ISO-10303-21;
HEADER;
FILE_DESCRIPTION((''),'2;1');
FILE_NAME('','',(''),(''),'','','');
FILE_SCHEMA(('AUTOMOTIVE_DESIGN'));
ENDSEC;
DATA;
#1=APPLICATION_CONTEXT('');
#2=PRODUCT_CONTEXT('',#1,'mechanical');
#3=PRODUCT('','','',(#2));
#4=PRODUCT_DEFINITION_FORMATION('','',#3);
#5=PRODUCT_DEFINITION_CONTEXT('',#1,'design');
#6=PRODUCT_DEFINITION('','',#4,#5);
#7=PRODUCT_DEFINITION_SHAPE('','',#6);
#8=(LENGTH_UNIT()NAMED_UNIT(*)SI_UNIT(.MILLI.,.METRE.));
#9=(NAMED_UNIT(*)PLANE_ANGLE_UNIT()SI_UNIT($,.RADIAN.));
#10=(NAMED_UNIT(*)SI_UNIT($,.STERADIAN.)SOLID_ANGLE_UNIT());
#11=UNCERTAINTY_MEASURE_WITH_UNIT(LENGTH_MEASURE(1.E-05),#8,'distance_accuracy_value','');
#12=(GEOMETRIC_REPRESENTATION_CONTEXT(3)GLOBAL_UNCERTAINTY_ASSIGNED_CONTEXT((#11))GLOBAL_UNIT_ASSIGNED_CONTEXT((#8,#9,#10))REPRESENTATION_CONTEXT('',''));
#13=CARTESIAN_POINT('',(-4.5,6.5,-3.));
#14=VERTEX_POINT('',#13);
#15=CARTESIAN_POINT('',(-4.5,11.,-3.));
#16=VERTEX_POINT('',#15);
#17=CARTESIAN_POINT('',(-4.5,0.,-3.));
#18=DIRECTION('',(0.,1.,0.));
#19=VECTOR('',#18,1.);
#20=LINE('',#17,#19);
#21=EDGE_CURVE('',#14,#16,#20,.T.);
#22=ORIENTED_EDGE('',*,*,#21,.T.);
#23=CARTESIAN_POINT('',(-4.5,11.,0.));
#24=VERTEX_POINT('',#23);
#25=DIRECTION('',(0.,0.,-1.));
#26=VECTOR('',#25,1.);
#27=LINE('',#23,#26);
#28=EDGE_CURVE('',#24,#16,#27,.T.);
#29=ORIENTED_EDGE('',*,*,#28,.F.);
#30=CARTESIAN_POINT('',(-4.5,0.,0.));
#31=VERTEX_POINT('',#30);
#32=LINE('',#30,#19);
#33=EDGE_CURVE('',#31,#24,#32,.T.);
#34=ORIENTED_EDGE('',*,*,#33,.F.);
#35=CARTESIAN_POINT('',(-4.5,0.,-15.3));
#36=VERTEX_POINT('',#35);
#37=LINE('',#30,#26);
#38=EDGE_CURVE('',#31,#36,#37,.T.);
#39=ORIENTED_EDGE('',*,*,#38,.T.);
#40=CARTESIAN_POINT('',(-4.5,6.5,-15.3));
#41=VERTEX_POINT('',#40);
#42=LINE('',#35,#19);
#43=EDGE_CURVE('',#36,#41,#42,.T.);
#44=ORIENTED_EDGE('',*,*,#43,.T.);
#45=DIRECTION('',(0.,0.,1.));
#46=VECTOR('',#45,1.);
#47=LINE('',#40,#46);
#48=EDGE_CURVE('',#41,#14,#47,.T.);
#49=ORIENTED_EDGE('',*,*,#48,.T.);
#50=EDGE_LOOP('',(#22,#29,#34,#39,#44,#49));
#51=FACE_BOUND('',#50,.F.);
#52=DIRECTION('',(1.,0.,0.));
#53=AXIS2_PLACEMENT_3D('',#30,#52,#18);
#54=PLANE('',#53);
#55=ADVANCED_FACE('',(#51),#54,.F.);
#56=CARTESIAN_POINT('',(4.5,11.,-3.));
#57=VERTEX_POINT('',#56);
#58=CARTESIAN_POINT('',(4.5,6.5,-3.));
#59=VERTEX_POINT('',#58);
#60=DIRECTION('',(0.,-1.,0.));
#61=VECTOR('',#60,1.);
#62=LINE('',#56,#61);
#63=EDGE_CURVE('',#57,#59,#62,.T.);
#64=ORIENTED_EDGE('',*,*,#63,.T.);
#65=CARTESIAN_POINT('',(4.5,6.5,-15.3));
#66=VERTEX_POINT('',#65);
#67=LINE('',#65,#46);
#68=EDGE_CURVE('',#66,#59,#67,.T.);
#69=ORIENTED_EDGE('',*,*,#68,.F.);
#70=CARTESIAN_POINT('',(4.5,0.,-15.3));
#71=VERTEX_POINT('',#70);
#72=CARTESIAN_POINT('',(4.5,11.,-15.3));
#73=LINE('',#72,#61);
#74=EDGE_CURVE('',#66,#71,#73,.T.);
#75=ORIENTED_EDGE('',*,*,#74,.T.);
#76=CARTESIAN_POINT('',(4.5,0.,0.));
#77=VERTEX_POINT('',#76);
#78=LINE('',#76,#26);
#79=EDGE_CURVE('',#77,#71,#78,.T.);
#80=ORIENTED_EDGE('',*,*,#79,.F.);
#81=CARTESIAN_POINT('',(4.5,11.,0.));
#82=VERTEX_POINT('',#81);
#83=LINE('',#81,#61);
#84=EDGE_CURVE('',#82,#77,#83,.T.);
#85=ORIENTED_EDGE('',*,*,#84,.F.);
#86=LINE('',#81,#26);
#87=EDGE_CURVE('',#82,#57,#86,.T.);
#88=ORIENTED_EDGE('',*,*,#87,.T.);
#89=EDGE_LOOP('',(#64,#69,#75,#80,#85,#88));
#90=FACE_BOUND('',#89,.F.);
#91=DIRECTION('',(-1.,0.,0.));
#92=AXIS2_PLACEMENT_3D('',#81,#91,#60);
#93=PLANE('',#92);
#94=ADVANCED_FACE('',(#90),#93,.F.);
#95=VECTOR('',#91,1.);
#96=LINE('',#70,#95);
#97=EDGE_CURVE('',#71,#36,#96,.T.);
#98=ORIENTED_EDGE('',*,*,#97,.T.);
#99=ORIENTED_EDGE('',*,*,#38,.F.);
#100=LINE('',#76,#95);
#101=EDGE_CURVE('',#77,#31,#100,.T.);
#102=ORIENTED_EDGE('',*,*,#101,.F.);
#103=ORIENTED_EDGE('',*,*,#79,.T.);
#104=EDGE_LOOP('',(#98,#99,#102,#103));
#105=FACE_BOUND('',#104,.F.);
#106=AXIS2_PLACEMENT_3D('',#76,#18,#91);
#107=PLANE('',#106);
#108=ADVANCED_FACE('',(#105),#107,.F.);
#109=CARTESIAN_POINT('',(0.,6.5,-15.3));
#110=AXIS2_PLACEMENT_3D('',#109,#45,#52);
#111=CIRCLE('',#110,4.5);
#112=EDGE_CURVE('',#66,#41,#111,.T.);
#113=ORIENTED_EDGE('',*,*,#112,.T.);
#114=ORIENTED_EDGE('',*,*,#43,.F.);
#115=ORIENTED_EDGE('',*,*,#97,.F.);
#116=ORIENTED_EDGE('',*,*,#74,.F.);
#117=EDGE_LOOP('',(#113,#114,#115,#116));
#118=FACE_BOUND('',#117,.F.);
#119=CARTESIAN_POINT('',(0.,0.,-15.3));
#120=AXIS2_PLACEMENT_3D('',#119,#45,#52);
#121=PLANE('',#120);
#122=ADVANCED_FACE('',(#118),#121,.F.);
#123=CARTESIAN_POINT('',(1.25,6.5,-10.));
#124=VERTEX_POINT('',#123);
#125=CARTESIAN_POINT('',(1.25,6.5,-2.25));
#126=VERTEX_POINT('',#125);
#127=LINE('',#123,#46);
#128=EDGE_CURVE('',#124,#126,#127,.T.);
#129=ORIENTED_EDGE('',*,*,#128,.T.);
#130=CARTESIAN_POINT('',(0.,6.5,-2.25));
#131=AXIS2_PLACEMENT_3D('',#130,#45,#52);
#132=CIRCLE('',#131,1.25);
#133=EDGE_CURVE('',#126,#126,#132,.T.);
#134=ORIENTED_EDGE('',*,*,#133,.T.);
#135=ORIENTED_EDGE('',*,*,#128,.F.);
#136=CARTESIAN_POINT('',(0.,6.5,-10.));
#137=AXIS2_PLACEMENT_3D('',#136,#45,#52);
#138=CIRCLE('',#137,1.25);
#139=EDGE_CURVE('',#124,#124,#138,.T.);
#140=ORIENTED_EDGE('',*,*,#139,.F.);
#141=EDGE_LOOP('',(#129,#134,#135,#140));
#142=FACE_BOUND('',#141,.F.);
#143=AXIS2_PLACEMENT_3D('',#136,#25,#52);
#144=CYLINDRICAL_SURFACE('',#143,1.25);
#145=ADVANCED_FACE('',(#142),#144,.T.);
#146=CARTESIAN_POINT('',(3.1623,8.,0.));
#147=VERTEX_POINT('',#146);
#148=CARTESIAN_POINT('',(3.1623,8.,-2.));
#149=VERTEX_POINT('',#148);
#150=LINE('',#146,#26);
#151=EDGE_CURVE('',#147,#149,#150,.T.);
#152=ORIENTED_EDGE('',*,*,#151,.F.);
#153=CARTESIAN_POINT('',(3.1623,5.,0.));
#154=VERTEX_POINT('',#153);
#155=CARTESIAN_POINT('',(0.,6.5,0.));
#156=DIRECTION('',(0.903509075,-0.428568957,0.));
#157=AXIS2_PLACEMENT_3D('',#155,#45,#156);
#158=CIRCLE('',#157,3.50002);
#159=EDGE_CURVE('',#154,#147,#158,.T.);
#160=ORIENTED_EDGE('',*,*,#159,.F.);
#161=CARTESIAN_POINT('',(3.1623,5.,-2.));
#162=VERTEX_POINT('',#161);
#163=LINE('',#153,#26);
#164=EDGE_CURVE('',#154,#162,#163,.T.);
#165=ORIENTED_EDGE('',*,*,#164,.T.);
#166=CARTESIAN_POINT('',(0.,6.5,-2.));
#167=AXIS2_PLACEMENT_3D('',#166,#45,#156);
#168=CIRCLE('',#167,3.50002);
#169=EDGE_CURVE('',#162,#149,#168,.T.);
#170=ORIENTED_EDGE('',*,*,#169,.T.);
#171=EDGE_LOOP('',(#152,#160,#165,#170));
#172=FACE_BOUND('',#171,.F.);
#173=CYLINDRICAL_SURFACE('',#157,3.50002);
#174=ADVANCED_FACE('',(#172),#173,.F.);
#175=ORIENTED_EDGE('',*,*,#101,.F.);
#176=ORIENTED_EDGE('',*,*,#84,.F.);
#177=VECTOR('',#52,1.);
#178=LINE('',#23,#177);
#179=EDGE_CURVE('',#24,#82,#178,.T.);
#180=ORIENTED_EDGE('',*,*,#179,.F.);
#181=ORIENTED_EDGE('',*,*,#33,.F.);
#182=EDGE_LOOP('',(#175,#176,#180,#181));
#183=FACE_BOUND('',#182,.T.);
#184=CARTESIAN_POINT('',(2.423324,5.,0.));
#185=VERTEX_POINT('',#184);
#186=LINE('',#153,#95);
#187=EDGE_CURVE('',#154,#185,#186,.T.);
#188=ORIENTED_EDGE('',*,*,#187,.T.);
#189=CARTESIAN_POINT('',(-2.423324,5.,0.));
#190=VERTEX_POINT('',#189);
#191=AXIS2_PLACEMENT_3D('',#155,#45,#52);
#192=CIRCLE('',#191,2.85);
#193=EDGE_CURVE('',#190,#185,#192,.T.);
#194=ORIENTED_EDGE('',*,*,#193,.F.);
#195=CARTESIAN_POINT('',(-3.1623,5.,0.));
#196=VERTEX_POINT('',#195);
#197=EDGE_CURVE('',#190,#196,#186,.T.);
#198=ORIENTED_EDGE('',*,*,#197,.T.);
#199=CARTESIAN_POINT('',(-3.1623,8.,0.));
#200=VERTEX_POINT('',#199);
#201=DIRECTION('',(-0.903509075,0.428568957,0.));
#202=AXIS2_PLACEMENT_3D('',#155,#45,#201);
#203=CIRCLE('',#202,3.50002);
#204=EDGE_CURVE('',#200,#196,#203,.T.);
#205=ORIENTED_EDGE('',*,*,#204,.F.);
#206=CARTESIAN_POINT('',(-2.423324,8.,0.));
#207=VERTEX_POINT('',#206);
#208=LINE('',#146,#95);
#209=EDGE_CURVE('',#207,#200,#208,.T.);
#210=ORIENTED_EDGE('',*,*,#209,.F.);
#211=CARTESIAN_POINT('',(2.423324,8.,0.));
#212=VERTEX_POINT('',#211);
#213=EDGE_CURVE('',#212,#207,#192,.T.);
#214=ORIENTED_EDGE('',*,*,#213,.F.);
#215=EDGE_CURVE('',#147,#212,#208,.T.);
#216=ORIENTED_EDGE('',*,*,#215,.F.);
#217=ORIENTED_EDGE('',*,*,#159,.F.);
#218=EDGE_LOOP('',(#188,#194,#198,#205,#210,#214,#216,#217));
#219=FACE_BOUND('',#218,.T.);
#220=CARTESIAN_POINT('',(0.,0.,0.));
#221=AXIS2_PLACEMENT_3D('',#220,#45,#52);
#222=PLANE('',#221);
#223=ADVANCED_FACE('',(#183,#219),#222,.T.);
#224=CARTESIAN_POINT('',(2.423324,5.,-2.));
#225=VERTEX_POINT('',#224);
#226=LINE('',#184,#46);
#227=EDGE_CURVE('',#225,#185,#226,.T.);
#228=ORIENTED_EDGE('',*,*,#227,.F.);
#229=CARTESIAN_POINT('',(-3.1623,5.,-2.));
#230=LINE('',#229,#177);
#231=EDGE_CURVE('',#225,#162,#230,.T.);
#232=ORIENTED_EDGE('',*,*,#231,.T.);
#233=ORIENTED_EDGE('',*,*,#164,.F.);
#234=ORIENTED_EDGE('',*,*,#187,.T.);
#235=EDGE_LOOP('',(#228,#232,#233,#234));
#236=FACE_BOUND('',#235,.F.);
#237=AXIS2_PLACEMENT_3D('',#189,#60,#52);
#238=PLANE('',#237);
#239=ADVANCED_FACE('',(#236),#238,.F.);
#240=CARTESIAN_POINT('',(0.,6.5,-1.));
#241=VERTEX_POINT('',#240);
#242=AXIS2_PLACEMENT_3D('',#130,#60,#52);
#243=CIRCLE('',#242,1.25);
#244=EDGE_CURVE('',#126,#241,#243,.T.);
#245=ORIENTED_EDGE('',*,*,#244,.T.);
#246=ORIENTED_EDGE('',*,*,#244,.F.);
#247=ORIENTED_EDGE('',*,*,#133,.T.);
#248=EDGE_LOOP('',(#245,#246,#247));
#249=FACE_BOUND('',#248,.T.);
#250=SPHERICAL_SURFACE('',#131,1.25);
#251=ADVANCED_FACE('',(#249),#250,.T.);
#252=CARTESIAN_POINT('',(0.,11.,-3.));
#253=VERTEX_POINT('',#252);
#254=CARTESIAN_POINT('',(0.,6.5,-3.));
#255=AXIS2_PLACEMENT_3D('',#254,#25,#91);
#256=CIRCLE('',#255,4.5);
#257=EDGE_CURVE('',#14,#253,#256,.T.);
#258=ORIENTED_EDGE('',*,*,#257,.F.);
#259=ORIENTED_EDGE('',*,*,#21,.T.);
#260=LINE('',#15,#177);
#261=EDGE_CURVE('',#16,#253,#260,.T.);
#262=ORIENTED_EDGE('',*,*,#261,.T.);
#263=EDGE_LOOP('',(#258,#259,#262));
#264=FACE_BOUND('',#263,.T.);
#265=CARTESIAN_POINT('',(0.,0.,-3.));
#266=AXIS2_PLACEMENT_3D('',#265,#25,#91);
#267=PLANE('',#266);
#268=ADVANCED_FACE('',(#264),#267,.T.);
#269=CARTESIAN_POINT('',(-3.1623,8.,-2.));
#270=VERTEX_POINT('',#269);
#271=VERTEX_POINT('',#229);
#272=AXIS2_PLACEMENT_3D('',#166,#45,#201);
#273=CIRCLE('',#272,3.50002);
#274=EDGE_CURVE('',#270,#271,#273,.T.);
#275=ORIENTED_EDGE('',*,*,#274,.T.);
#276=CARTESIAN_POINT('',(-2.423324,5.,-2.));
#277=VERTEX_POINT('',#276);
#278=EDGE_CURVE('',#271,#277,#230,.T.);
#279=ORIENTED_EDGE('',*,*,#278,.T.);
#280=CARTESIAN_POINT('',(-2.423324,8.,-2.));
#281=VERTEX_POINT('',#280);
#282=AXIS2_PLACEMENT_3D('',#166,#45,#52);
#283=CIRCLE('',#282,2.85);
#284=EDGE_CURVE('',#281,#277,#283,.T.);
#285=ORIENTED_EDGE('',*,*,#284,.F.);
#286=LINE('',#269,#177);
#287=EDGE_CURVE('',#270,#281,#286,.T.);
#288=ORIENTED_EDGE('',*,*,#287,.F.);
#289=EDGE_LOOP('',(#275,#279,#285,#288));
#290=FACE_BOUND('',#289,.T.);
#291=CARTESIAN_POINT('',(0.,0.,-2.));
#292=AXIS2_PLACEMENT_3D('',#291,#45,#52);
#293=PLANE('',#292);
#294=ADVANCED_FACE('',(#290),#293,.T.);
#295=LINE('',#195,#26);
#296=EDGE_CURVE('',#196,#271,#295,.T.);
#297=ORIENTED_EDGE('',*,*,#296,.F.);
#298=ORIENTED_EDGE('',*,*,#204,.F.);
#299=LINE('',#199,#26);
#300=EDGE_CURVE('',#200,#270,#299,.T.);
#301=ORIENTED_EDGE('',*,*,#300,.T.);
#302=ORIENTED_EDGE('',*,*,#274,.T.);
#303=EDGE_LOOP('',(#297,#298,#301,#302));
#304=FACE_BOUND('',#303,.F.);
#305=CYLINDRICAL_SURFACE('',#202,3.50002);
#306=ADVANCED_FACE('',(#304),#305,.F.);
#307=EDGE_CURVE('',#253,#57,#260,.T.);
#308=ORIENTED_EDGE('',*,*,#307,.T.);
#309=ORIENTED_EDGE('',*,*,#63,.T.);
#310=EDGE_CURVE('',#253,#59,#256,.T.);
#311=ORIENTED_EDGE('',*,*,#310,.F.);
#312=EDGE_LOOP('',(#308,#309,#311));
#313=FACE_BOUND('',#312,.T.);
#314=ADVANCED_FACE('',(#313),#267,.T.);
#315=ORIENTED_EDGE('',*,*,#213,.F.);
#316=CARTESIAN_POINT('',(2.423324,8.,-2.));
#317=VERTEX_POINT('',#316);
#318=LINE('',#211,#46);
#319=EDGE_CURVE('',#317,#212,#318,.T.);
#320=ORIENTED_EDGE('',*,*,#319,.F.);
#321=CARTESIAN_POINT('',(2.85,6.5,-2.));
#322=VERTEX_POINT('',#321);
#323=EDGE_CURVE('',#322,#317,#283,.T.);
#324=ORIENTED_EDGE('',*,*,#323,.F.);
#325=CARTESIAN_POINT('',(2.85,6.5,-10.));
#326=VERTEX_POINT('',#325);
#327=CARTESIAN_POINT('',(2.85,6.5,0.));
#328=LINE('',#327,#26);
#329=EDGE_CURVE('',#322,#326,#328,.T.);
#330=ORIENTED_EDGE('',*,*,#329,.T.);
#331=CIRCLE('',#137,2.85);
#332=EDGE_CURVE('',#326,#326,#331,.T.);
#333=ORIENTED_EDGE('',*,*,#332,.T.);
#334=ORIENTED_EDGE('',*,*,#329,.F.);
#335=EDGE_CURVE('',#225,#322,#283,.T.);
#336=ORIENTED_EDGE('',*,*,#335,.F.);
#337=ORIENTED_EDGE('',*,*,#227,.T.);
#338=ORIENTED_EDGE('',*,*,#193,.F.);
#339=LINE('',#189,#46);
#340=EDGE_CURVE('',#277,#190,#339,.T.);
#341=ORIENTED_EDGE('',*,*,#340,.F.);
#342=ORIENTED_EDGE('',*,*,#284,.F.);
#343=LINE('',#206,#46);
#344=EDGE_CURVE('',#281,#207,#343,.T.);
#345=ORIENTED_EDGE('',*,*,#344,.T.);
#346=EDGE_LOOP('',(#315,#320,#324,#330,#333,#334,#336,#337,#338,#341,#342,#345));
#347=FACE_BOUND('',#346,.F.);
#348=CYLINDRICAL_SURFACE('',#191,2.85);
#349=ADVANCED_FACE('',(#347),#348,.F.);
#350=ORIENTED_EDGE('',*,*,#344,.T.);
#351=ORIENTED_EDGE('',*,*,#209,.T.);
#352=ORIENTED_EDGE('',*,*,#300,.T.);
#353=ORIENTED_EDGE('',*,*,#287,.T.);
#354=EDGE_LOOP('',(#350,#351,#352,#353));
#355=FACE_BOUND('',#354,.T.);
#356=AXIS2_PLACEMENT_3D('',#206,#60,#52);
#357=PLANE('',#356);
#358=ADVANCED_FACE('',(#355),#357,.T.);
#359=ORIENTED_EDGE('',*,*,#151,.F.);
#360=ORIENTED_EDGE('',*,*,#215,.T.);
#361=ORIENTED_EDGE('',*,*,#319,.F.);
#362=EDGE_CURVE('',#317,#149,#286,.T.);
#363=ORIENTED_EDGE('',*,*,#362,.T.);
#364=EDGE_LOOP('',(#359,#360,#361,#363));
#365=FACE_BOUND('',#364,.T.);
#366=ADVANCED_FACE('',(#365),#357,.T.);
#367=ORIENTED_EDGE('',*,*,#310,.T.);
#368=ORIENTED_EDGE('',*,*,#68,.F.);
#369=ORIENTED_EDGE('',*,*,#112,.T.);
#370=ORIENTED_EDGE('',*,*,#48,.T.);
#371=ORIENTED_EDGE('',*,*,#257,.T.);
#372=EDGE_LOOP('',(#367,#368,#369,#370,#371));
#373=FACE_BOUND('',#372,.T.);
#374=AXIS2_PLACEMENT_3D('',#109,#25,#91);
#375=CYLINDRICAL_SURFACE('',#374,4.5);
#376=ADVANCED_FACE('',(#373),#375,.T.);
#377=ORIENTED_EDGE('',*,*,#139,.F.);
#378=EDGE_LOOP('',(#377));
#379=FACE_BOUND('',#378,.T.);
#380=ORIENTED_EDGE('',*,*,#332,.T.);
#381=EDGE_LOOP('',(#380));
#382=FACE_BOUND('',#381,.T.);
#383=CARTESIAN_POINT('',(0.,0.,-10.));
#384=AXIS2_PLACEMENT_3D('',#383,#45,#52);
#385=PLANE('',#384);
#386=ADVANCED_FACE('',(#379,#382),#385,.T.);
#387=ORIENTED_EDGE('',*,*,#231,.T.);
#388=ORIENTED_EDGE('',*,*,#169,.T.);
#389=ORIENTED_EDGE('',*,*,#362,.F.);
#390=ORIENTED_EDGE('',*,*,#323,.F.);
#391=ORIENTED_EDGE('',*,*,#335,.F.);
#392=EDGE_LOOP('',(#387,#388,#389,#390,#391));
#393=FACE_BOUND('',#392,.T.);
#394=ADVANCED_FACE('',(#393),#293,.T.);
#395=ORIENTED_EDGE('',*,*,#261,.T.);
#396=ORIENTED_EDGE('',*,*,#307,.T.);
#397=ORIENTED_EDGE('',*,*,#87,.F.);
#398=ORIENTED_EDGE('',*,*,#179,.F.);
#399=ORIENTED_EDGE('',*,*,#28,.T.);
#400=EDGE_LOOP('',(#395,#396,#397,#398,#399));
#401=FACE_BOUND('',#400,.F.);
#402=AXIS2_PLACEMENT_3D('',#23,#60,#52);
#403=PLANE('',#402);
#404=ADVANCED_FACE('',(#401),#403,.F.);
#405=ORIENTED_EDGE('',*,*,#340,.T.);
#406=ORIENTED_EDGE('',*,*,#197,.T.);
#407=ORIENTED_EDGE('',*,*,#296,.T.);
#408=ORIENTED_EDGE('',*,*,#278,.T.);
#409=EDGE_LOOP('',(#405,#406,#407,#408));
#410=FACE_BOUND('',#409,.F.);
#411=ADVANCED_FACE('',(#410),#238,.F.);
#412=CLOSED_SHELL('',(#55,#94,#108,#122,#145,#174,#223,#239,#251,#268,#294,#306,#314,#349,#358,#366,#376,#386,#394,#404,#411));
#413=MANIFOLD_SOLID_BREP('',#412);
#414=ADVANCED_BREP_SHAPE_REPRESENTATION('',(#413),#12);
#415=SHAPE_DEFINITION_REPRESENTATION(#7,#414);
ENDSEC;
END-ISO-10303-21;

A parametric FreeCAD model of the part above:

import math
import FreeCAD as App
import Part
import Sketcher

V = App.Vector
Q = App.Units.Quantity


def edges_at(feature, points):
    """Names of the edges that pass closest to the given points."""
    edges = feature.Shape.Edges
    near = lambda p: min(range(len(edges)), key=lambda i: edges[i].distToShape(Part.Vertex(*p))[0])
    return sorted({f"Edge{near(p) + 1}" for p in points})


def add_polygon(sketch, points):
    """Adds a closed chain of lines whose ends are joined by coincident constraints."""
    first, n = sketch.GeometryCount, len(points)
    for a, b in zip(points, points[1:] + points[:1]):
        sketch.addGeometry(Part.LineSegment(App.Vector(*a, 0), App.Vector(*b, 0)), False)
    for i in range(n):
        sketch.addConstraint(Sketcher.Constraint("Coincident", first + i, 2, first + (i + 1) % n, 1))

doc = App.newDocument("Part")
body = doc.addObject("PartDesign::Body", "Body")

sketch1 = doc.addObject("Sketcher::SketchObject", "Sketch")
body.addObject(sketch1)
sketch1.AttachmentSupport = (doc.XY_Plane, [""])
sketch1.MapMode = "FlatFace"
add_polygon(sketch1, [(4.5, 11), (-4.5, 11), (-4.5, 0), (4.5, 0)])
sketch1.addConstraint(Sketcher.Constraint("Horizontal", 0))
sketch1.addConstraint(Sketcher.Constraint("Vertical", 1))
sketch1.addConstraint(Sketcher.Constraint("Horizontal", 2))
sketch1.addConstraint(Sketcher.Constraint("Vertical", 3))
sketch1.addConstraint(Sketcher.Constraint("Symmetric", 1, 2, 2, 2, -1, 1))
sketch1.addConstraint(Sketcher.Constraint("DistanceX", 0, 2, 0, 1, Q("9 mm")))
sketch1.addConstraint(Sketcher.Constraint("DistanceY", 1, 2, 1, 1, Q("11 mm")))
pad1 = doc.addObject("PartDesign::Pad", "Pad")
body.addObject(pad1)
pad1.Profile = sketch1
pad1.Length = 15.3
pad1.Reversed = True

sketch2 = doc.addObject("Sketcher::SketchObject", "Sketch001")
body.addObject(sketch2)
sketch2.AttachmentSupport = (doc.XY_Plane, [""])
sketch2.MapMode = "FlatFace"
sketch2.addGeometry(Part.Circle(V(0, 6.5, 0), V(0, 0, 1), 2.85), False)
sketch2.addConstraint(Sketcher.Constraint("PointOnObject", 0, 3, -2))
sketch2.addConstraint(Sketcher.Constraint("Diameter", 0, Q("5.7 mm")))
sketch2.addConstraint(Sketcher.Constraint("DistanceY", -1, 1, 0, 3, Q("6.5 mm")))
pocket1 = doc.addObject("PartDesign::Pocket", "Pocket")
body.addObject(pocket1)
pocket1.Profile = sketch2
pocket1.Length = 10

sketch3 = doc.addObject("Sketcher::SketchObject", "Sketch002")
body.addObject(sketch3)
sketch3.AttachmentSupport = (doc.XY_Plane, [""])
sketch3.MapMode = "FlatFace"
sketch3.addGeometry(Part.ArcOfCircle(Part.Circle(V(0, 6.5, 0), V(0, 0, 1), 3.50002), math.radians(-25.376777), math.radians(25.376777)), False)
sketch3.addGeometry(Part.LineSegment(V(3.1623, 8, 0), V(-3.1623, 8, 0)), False)
sketch3.addGeometry(Part.ArcOfCircle(Part.Circle(V(0, 6.5, 0), V(0, 0, 1), 3.50002), math.radians(154.623223), math.radians(205.376777)), False)
sketch3.addGeometry(Part.LineSegment(V(-3.1623, 5, 0), V(3.1623, 5, 0)), False)
sketch3.addConstraint(Sketcher.Constraint("Coincident", 0, 2, 1, 1))
sketch3.addConstraint(Sketcher.Constraint("Coincident", 1, 2, 2, 1))
sketch3.addConstraint(Sketcher.Constraint("Coincident", 2, 2, 3, 1))
sketch3.addConstraint(Sketcher.Constraint("Coincident", 3, 2, 0, 1))
sketch3.addConstraint(Sketcher.Constraint("Horizontal", 1))
sketch3.addConstraint(Sketcher.Constraint("Horizontal", 3))
sketch3.addConstraint(Sketcher.Constraint("Coincident", 2, 3, 0, 3))
sketch3.addConstraint(Sketcher.Constraint("Equal", 0, 2))
sketch3.addConstraint(Sketcher.Constraint("PointOnObject", 0, 3, -2))
sketch3.addConstraint(Sketcher.Constraint("Vertical", 1, 2, 2, 2))
sketch3.addConstraint(Sketcher.Constraint("Radius", 0, Q("3.5 mm")))
sketch3.addConstraint(Sketcher.Constraint("DistanceY", 2, 2, 1, 2, Q("3 mm")))
sketch3.addConstraint(Sketcher.Constraint("DistanceY", -1, 1, 0, 2, Q("8 mm")))
pocket2 = doc.addObject("PartDesign::Pocket", "Pocket001")
body.addObject(pocket2)
pocket2.Profile = sketch3
pocket2.Length = 2

sketch4 = doc.addObject("Sketcher::SketchObject", "Sketch003")
body.addObject(sketch4)
sketch4.AttachmentSupport = (doc.XY_Plane, [""])
sketch4.MapMode = "FlatFace"
sketch4.AttachmentOffset = App.Placement(V(0, 0, -10), App.Rotation())
sketch4.addGeometry(Part.Circle(V(0, 6.5, 0), V(0, 0, 1), 1.25), False)
sketch4.addConstraint(Sketcher.Constraint("PointOnObject", 0, 3, -2))
sketch4.addConstraint(Sketcher.Constraint("Diameter", 0, Q("2.5 mm")))
sketch4.addConstraint(Sketcher.Constraint("DistanceY", -1, 1, 0, 3, Q("6.5 mm")))
pad2 = doc.addObject("PartDesign::Pad", "Pad001")
body.addObject(pad2)
pad2.Profile = sketch4
pad2.Length = 9
doc.recompute()

fillet = doc.addObject("PartDesign::Fillet", "Fillet")
body.addObject(fillet)
fillet.Base = (pad2, edges_at(pad2, [(-1.25, 6.5, -1)]))
fillet.Radius = 1.25

sketch5 = doc.addObject("Sketcher::SketchObject", "Sketch004")
body.addObject(sketch5)
sketch5.AttachmentSupport = (doc.XY_Plane, [""])
sketch5.MapMode = "FlatFace"
sketch5.AttachmentOffset = App.Placement(V(0, 0, -15.3), App.Rotation())
sketch5.addGeometry(Part.LineSegment(V(-4.5, 6.5, 0), V(-4.5, 11, 0)), False)
sketch5.addGeometry(Part.LineSegment(V(-4.5, 11, 0), V(0, 11, 0)), False)
sketch5.addGeometry(Part.ArcOfCircle(Part.Circle(V(0, 6.5, 0), V(0, 0, 1), 4.5), math.radians(90), math.radians(180)), False)
sketch5.addGeometry(Part.ArcOfCircle(Part.Circle(V(0, 6.5, 0), V(0, 0, 1), 4.5), math.radians(0), math.radians(90)), False)
sketch5.addGeometry(Part.LineSegment(V(0, 11, 0), V(4.5, 11, 0)), False)
sketch5.addGeometry(Part.LineSegment(V(4.5, 11, 0), V(4.5, 6.5, 0)), False)
sketch5.addConstraint(Sketcher.Constraint("Coincident", 0, 2, 1, 1))
sketch5.addConstraint(Sketcher.Constraint("Tangent", 1, 2, 2, 1))
sketch5.addConstraint(Sketcher.Constraint("Tangent", 2, 2, 0, 1))
sketch5.addConstraint(Sketcher.Constraint("Tangent", 3, 2, 4, 1))
sketch5.addConstraint(Sketcher.Constraint("Coincident", 4, 2, 5, 1))
sketch5.addConstraint(Sketcher.Constraint("Tangent", 5, 2, 3, 1))
sketch5.addConstraint(Sketcher.Constraint("Vertical", 0))
sketch5.addConstraint(Sketcher.Constraint("Horizontal", 1))
sketch5.addConstraint(Sketcher.Constraint("Horizontal", 4))
sketch5.addConstraint(Sketcher.Constraint("Vertical", 5))
sketch5.addConstraint(Sketcher.Constraint("Coincident", 3, 3, 2, 3))
sketch5.addConstraint(Sketcher.Constraint("Equal", 2, 3))
sketch5.addConstraint(Sketcher.Constraint("PointOnObject", 2, 3, -2))
sketch5.addConstraint(Sketcher.Constraint("Radius", 2, Q("4.5 mm")))
sketch5.addConstraint(Sketcher.Constraint("DistanceY", -1, 1, 0, 2, Q("11 mm")))
pocket3 = doc.addObject("PartDesign::Pocket", "Pocket002")
body.addObject(pocket3)
pocket3.Profile = sketch5
pocket3.Length = 12.3
pocket3.Reversed = True

doc.recompute()
